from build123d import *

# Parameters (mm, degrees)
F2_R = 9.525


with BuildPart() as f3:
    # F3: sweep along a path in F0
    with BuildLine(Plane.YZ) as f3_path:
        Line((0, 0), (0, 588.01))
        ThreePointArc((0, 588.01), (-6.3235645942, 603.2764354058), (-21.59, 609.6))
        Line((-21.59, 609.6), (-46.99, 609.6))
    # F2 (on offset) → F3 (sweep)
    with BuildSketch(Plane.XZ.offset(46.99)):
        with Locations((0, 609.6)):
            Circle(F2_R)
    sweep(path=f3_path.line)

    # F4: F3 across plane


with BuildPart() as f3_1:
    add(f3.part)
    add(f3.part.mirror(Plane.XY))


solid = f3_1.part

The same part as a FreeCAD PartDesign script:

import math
import FreeCAD as App
import Part
import Sketcher
from FreeCAD import Vector
Q = App.Units.Quantity

doc = App.newDocument("Part")
params = doc.addObject("Spreadsheet::Sheet", "Params")
for row, (alias, value) in enumerate([
    ("sketch1_diameter", "0.75 in"),
    ("sketch2_width", "1 in"),
    ("sketch2_radius", "0.85 in"),
], start=1):
    params.set(f"A{row}", alias)
    params.set(f"B{row}", "=" + value)
    params.setAlias(f"B{row}", alias)

body = doc.addObject("PartDesign::Body", "Body")

# Sketch on XZ plane
sketch1 = body.newObject("Sketcher::SketchObject", "Sketch")
sketch1.AttachmentSupport = (doc.getObject("XZ_Plane"), [""])
sketch1.MapMode = "FlatFace"
sketch1.AttachmentOffset = App.Placement(Vector(0, 0, 1.85 * 25.4), App.Rotation())
sketch1.addGeometry(Part.Circle(Vector(0, 609.6, 0), Vector(0, 0, 1), 9.525), False)
sketch1.addConstraint([
    Sketcher.Constraint("PointOnObject", 0, 3, -2),
    Sketcher.Constraint("Diameter", 0, Q("0.75 in")),
    Sketcher.Constraint("DistanceY", -1, 1, 0, 3, Q("24 in")),
])
sketch1.setExpression("Constraints[1]", "Params.sketch1_diameter")

# Sketch on YZ plane
sketch2 = body.newObject("Sketcher::SketchObject", "Sketch001")
sketch2.AttachmentSupport = (doc.getObject("YZ_Plane"), [""])
sketch2.MapMode = "FlatFace"
sketch2.addGeometry([
    Part.LineSegment(Vector(0, 0, 0), Vector(0, 588.01, 0)),
    Part.ArcOfCircle(Part.Circle(Vector(-21.59, 588.01, 0), Vector(0, 0, 1), 21.59), math.radians(0), math.radians(90)),
    Part.LineSegment(Vector(-21.59, 609.6, 0), Vector(-46.99, 609.6, 0)),
], False)
sketch2.addConstraint([
    Sketcher.Constraint("Tangent", 0, 2, 1, 1),
    Sketcher.Constraint("Tangent", 1, 2, 2, 1),
    Sketcher.Constraint("Vertical", 0),
    Sketcher.Constraint("Horizontal", 2),
    Sketcher.Constraint("Coincident", 0, 1, -1, 1),
    Sketcher.Constraint("DistanceX", 2, 2, 2, 1, Q("1 in")),
    Sketcher.Constraint("Radius", 1, Q("0.85 in")),
    Sketcher.Constraint("DistanceY", -1, 1, 1, 2, Q("24 in")),
])
sketch2.setExpression("Constraints[5]", "Params.sketch2_width")
sketch2.setExpression("Constraints[6]", "Params.sketch2_radius")
doc.recompute()

additivepipe = body.newObject("PartDesign::AdditivePipe", "AdditivePipe")
additivepipe.Profile = sketch1
additivepipe.Spine = (sketch2, ["Edge1", "Edge2", "Edge3"])
body2 = doc.addObject("PartDesign::Body", "Body001")
doc.recompute()

body2.BaseFeature = body
doc.recompute()

mirroring = doc.addObject("Part::Mirroring", "Mirroring")
mirroring.Source = body
mirroring.Base = Vector(0, 0, 0)
mirroring.Normal = Vector(0, 0, 1)
body3 = doc.addObject("PartDesign::Body", "Body002")
body3.BaseFeature = mirroring
boolean = body2.newObject("PartDesign::Boolean", "Boolean")
boolean.Type = "Fuse"
boolean.addObjects([body3])
doc.recompute()
mirroring.Visibility = False

doc.recompute()
